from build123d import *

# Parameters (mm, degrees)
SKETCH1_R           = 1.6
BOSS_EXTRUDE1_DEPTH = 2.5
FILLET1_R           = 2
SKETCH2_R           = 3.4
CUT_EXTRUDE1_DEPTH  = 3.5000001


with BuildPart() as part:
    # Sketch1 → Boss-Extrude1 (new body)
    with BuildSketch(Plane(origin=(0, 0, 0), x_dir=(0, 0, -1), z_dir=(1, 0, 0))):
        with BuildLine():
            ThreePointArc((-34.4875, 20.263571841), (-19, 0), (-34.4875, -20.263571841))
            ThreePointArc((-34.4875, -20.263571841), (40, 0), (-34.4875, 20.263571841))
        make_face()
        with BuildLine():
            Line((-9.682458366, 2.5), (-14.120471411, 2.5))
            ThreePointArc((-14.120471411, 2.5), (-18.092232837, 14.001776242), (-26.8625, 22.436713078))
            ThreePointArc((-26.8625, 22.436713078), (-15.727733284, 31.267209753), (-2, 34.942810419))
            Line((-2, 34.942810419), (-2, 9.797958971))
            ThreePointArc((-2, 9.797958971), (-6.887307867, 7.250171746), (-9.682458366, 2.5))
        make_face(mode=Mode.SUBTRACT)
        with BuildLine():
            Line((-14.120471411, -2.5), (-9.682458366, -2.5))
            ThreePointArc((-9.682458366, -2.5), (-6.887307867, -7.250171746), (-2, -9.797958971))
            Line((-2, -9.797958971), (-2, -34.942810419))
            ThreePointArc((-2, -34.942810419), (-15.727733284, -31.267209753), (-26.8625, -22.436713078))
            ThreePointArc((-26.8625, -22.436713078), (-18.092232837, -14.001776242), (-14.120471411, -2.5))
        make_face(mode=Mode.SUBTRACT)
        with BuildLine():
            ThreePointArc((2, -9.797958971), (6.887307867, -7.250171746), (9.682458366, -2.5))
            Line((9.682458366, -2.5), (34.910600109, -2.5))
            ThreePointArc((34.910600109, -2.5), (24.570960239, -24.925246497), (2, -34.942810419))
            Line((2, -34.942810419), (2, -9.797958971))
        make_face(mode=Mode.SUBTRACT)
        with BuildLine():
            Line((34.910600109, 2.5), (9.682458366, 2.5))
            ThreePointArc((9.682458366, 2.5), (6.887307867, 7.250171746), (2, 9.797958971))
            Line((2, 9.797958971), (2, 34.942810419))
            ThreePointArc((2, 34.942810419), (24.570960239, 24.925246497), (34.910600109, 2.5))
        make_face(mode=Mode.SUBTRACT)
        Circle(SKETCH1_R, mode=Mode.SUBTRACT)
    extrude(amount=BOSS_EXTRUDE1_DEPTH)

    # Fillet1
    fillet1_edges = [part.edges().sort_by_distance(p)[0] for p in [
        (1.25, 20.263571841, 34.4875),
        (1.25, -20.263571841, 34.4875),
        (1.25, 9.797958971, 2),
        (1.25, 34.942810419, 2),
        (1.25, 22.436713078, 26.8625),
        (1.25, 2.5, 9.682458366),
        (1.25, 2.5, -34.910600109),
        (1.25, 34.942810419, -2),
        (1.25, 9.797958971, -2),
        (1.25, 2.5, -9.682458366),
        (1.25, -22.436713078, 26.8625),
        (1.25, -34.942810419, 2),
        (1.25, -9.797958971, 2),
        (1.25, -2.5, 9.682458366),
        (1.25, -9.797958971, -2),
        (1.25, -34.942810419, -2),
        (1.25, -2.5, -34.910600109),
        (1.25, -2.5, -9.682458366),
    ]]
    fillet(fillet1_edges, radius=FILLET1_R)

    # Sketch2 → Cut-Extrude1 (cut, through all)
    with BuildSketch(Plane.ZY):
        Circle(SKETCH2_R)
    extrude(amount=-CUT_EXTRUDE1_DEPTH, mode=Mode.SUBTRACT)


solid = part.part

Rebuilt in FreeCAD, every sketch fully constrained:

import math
import FreeCAD as App
import Part
import Sketcher

V = App.Vector
Q = App.Units.Quantity


def edges_at(feature, points):
    """Names of the edges that pass closest to the given points."""
    edges = feature.Shape.Edges
    near = lambda p: min(range(len(edges)), key=lambda i: edges[i].distToShape(Part.Vertex(*p))[0])
    return sorted({f"Edge{near(p) + 1}" for p in points})

doc = App.newDocument("Part")
body = doc.addObject("PartDesign::Body", "Body")

# Sketch on YZ plane
sketch1 = body.newObject("Sketcher::SketchObject", "Sketch")
sketch1.AttachmentSupport = (doc.getObject("YZ_Plane"), [""])
sketch1.MapMode = "FlatFace"
sketch1.addGeometry([
    Part.ArcOfCircle(Part.Circle(V(0, 40, 0), V(0, 0, 1), 21), math.radians(-164.781545), math.radians(-15.218455)),  # 0
    Part.ArcOfCircle(Part.Circle(V(0, 0, 0), V(0, 0, 1), 40), math.radians(120.43691), math.radians(419.56309)),  # 1
    Part.ArcOfCircle(Part.Circle(V(0, 40, 0), V(0, 0, 1), 26), math.radians(-149.649497), math.radians(-95.517734)),  # 2
    Part.LineSegment(V(-2.5, 14.120471, 0), V(-2.5, 9.682458, 0)),  # 3
    Part.ArcOfCircle(Part.Circle(V(0, 0, 0), V(0, 0, 1), 10), math.radians(104.477512), math.radians(168.463041)),  # 4
    Part.LineSegment(V(-9.797959, 2, 0), V(-34.94281, 2, 0)),  # 5
    Part.ArcOfCircle(Part.Circle(V(0, 0, 0), V(0, 0, 1), 35), math.radians(129.870081), math.radians(176.724171)),  # 6
    Part.LineSegment(V(-34.94281, -2, 0), V(-9.797959, -2, 0)),  # 7
    Part.ArcOfCircle(Part.Circle(V(0, 0, 0), V(0, 0, 1), 10), math.radians(-168.463041), math.radians(-104.477512)),  # 8
    Part.LineSegment(V(-2.5, -9.682458, 0), V(-2.5, -34.9106, 0)),  # 9
    Part.ArcOfCircle(Part.Circle(V(0, 0, 0), V(0, 0, 1), 35), math.radians(-176.724171), math.radians(-94.096044)),  # 10
    Part.Circle(V(0, 0, 0), V(0, 0, 1), 1.6),  # 11
    Part.ArcOfCircle(Part.Circle(V(0, 0, 0), V(0, 0, 1), 10), math.radians(11.536959), math.radians(75.522488)),  # 12
    Part.LineSegment(V(2.5, 9.682458, 0), V(2.5, 14.120471, 0)),  # 13
    Part.ArcOfCircle(Part.Circle(V(0, 40, 0), V(0, 0, 1), 26), math.radians(-84.482266), math.radians(-30.350503)),  # 14
    Part.ArcOfCircle(Part.Circle(V(0, 0, 0), V(0, 0, 1), 35), math.radians(3.275829), math.radians(50.129919)),  # 15
    Part.LineSegment(V(34.94281, 2, 0), V(9.797959, 2, 0)),  # 16
    Part.ArcOfCircle(Part.Circle(V(0, 0, 0), V(0, 0, 1), 35), math.radians(-85.903956), math.radians(-3.275829)),  # 17
    Part.LineSegment(V(2.5, -34.9106, 0), V(2.5, -9.682458, 0)),  # 18
    Part.ArcOfCircle(Part.Circle(V(0, 0, 0), V(0, 0, 1), 10), math.radians(-75.522488), math.radians(-11.536959)),  # 19
    Part.LineSegment(V(9.797959, -2, 0), V(34.94281, -2, 0)),  # 20
], False)
sketch1.addConstraint([
    Sketcher.Constraint("Coincident", 0, 1, 1, 1),
    Sketcher.Constraint("Coincident", 1, 2, 0, 2),
    Sketcher.Constraint("Coincident", 2, 2, 3, 1),
    Sketcher.Constraint("Coincident", 3, 2, 4, 1),
    Sketcher.Constraint("Coincident", 4, 2, 5, 1),
    Sketcher.Constraint("Coincident", 5, 2, 6, 2),
    Sketcher.Constraint("Coincident", 6, 1, 2, 1),
    Sketcher.Constraint("Coincident", 7, 2, 8, 1),
    Sketcher.Constraint("Coincident", 8, 2, 9, 1),
    Sketcher.Constraint("Coincident", 9, 2, 10, 2),
    Sketcher.Constraint("Coincident", 10, 1, 7, 1),
    Sketcher.Constraint("Coincident", 12, 2, 13, 1),
    Sketcher.Constraint("Coincident", 13, 2, 14, 1),
    Sketcher.Constraint("Coincident", 14, 2, 15, 2),
    Sketcher.Constraint("Coincident", 15, 1, 16, 1),
    Sketcher.Constraint("Coincident", 16, 2, 12, 1),
    Sketcher.Constraint("Coincident", 17, 1, 18, 1),
    Sketcher.Constraint("Coincident", 18, 2, 19, 1),
    Sketcher.Constraint("Coincident", 19, 2, 20, 1),
    Sketcher.Constraint("Coincident", 20, 2, 17, 2),
    Sketcher.Constraint("Vertical", 3),
    Sketcher.Constraint("Horizontal", 5),
    Sketcher.Constraint("Horizontal", 7),
    Sketcher.Constraint("Vertical", 9),
    Sketcher.Constraint("Vertical", 13),
    Sketcher.Constraint("Horizontal", 16),
    Sketcher.Constraint("Vertical", 18),
    Sketcher.Constraint("Horizontal", 20),
    Sketcher.Constraint("Coincident", 1, 3, -1, 1),
    Sketcher.Constraint("Coincident", 4, 3, -1, 1),
    Sketcher.Constraint("Coincident", 6, 3, -1, 1),
    Sketcher.Constraint("Coincident", 8, 3, -1, 1),
    Sketcher.Constraint("Coincident", 10, 3, -1, 1),
    Sketcher.Constraint("Coincident", 11, 3, -1, 1),
    Sketcher.Constraint("Coincident", 12, 3, -1, 1),
    Sketcher.Constraint("Coincident", 15, 3, -1, 1),
    Sketcher.Constraint("Coincident", 17, 3, -1, 1),
    Sketcher.Constraint("Coincident", 19, 3, -1, 1),
    Sketcher.Constraint("Coincident", 2, 3, 0, 3),
    Sketcher.Constraint("Coincident", 14, 3, 0, 3),
    Sketcher.Constraint("Equal", 4, 8),
    Sketcher.Constraint("Equal", 6, 10),
    Sketcher.Constraint("Equal", 8, 12),
    Sketcher.Constraint("Equal", 2, 14),
    Sketcher.Constraint("Equal", 10, 15),
    Sketcher.Constraint("Equal", 15, 17),
    Sketcher.Constraint("Equal", 12, 19),
    Sketcher.Constraint("Symmetric", 2, 2, 13, 2, -2),
    Sketcher.Constraint("Horizontal", 5, 2, 15, 1),
    Sketcher.Constraint("Horizontal", 9, 2, 17, 1),
    Sketcher.Constraint("Horizontal", 10, 1, 19, 2),
    Sketcher.Constraint("Vertical", 4, 2, 7, 2),
    Sketcher.Constraint("Vertical", 3, 2, 8, 2),
    Sketcher.Constraint("Radius", 0, Q("21 mm")),
    Sketcher.Constraint("Radius", 1, Q("40 mm")),
    Sketcher.Constraint("Radius", 2, Q("26 mm")),
    Sketcher.Constraint("Radius", 4, Q("10 mm")),
    Sketcher.Constraint("Radius", 6, Q("35 mm")),
    Sketcher.Constraint("Diameter", 11, Q("3.2 mm")),
    Sketcher.Constraint("DistanceY", -1, 1, 0, 3, Q("40 mm")),
    Sketcher.Constraint("DistanceY", -1, 1, 4, 2, Q("2 mm")),
    Sketcher.Constraint("DistanceX", 3, 2, 12, 2, Q("5 mm")),
])
pad1 = body.newObject("PartDesign::Pad", "Pad")
pad1.Profile = sketch1
pad1.Length = 2.5
doc.recompute()

fillet = body.newObject("PartDesign::Fillet", "Fillet")
fillet.Base = (pad1, edges_at(pad1, [
    (1.25, 20.264, 34.487),
    (1.25, -20.264, 34.487),
    (1.25, 9.798, 2),
    (1.25, 34.943, 2),
    (1.25, 22.437, 26.863),
    (1.25, 2.5, 9.682),
    (1.25, 2.5, -34.911),
    (1.25, 34.943, -2),
    (1.25, 9.798, -2),
    (1.25, 2.5, -9.682),
    (1.25, -22.437, 26.863),
    (1.25, -34.943, 2),
    (1.25, -9.798, 2),
    (1.25, -2.5, 9.682),
    (1.25, -9.798, -2),
    (1.25, -34.943, -2),
    (1.25, -2.5, -34.911),
    (1.25, -2.5, -9.682),
]))
fillet.Radius = 2

# Sketch on YZ plane
sketch2 = body.newObject("Sketcher::SketchObject", "Sketch001")
sketch2.AttachmentSupport = (doc.getObject("YZ_Plane"), [""])
sketch2.MapMode = "FlatFace"
sketch2.addGeometry(Part.Circle(V(0, 0, 0), V(0, 0, 1), 3.4), False)
sketch2.addConstraint([
    Sketcher.Constraint("Coincident", 0, 3, -1, 1),
    Sketcher.Constraint("Diameter", 0, Q("6.8 mm")),
])
pocket1 = body.newObject("PartDesign::Pocket", "Pocket")
pocket1.Profile = sketch2
pocket1.Type = "ThroughAll"
pocket1.Reversed = True

doc.recompute()
